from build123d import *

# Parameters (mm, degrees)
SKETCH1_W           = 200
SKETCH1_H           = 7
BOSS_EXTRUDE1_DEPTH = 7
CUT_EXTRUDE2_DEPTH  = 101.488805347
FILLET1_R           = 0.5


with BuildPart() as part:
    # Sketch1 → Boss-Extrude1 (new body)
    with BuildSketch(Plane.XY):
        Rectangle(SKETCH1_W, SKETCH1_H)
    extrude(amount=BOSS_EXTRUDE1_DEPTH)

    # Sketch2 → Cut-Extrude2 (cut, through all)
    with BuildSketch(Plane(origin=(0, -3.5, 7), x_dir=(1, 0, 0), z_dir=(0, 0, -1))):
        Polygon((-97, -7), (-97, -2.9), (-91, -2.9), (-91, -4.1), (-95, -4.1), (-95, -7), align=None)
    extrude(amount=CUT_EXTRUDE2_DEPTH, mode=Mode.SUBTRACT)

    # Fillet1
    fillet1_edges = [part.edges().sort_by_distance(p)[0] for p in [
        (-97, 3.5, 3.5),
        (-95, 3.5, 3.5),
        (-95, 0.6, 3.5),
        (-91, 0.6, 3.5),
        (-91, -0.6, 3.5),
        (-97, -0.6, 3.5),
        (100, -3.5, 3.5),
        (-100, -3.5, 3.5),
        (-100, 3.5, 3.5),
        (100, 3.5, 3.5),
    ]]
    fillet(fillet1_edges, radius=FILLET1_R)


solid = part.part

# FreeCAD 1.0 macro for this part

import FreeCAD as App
import Part
import Sketcher
from FreeCAD import Vector
Q = App.Units.Quantity


def edges_at(feature, points):
    """Names of the edges that pass closest to the given points."""
    edges = feature.Shape.Edges
    near = lambda p: min(range(len(edges)), key=lambda i: edges[i].distToShape(Part.Vertex(*p))[0])
    return sorted({f"Edge{near(p) + 1}" for p in points})

doc = App.newDocument("Part")
body = doc.addObject("PartDesign::Body", "Body")

# Sketch on XY plane
sketch1 = body.newObject("Sketcher::SketchObject", "Sketch")
sketch1.AttachmentSupport = (doc.getObject("XY_Plane"), [""])
sketch1.MapMode = "FlatFace"
sketch1.addGeometry(Part.LineSegment(Vector(-100, 3.5, 0), Vector(-100, -3.5, 0)), False)
sketch1.addGeometry(Part.LineSegment(Vector(-100, -3.5, 0), Vector(100, -3.5, 0)), False)
sketch1.addGeometry(Part.LineSegment(Vector(100, -3.5, 0), Vector(100, 3.5, 0)), False)
sketch1.addGeometry(Part.LineSegment(Vector(100, 3.5, 0), Vector(-100, 3.5, 0)), False)
sketch1.addConstraint(Sketcher.Constraint("Coincident", 0, 2, 1, 1))
sketch1.addConstraint(Sketcher.Constraint("Coincident", 1, 2, 2, 1))
sketch1.addConstraint(Sketcher.Constraint("Coincident", 2, 2, 3, 1))
sketch1.addConstraint(Sketcher.Constraint("Coincident", 3, 2, 0, 1))
sketch1.addConstraint(Sketcher.Constraint("Vertical", 0))
sketch1.addConstraint(Sketcher.Constraint("Horizontal", 1))
sketch1.addConstraint(Sketcher.Constraint("Vertical", 2))
sketch1.addConstraint(Sketcher.Constraint("Horizontal", 3))
sketch1.addConstraint(Sketcher.Constraint("Symmetric", 0, 2, 2, 2, -1, 1))
sketch1.addConstraint(Sketcher.Constraint("DistanceX", 1, 1, 1, 2, Q("200 mm")))
sketch1.addConstraint(Sketcher.Constraint("DistanceY", 0, 2, 0, 1, Q("7 mm")))
pad1 = body.newObject("PartDesign::Pad", "Pad")
pad1.Profile = sketch1
pad1.Length = 7

# Sketch on XY plane
sketch2 = body.newObject("Sketcher::SketchObject", "Sketch001")
sketch2.AttachmentSupport = (doc.getObject("XY_Plane"), [""])
sketch2.MapMode = "FlatFace"
sketch2.AttachmentOffset = App.Placement(Vector(0, 0, 7), App.Rotation())
sketch2.addGeometry(Part.LineSegment(Vector(-97, -0.6, 0), Vector(-97, 3.5, 0)), False)
sketch2.addGeometry(Part.LineSegment(Vector(-97, 3.5, 0), Vector(-95, 3.5, 0)), False)
sketch2.addGeometry(Part.LineSegment(Vector(-95, 3.5, 0), Vector(-95, 0.6, 0)), False)
sketch2.addGeometry(Part.LineSegment(Vector(-95, 0.6, 0), Vector(-91, 0.6, 0)), False)
sketch2.addGeometry(Part.LineSegment(Vector(-91, 0.6, 0), Vector(-91, -0.6, 0)), False)
sketch2.addGeometry(Part.LineSegment(Vector(-91, -0.6, 0), Vector(-97, -0.6, 0)), False)
sketch2.addConstraint(Sketcher.Constraint("Coincident", 0, 2, 1, 1))
sketch2.addConstraint(Sketcher.Constraint("Coincident", 1, 2, 2, 1))
sketch2.addConstraint(Sketcher.Constraint("Coincident", 2, 2, 3, 1))
sketch2.addConstraint(Sketcher.Constraint("Coincident", 3, 2, 4, 1))
sketch2.addConstraint(Sketcher.Constraint("Coincident", 4, 2, 5, 1))
sketch2.addConstraint(Sketcher.Constraint("Coincident", 5, 2, 0, 1))
sketch2.addConstraint(Sketcher.Constraint("Vertical", 0))
sketch2.addConstraint(Sketcher.Constraint("Horizontal", 1))
sketch2.addConstraint(Sketcher.Constraint("Vertical", 2))
sketch2.addConstraint(Sketcher.Constraint("Horizontal", 3))
sketch2.addConstraint(Sketcher.Constraint("Vertical", 4))
sketch2.addConstraint(Sketcher.Constraint("Horizontal", 5))
sketch2.addConstraint(Sketcher.Constraint("DistanceX", 1, 1, 1, 2, Q("2 mm")))
sketch2.addConstraint(Sketcher.Constraint("DistanceX", 3, 1, 3, 2, Q("4 mm")))
sketch2.addConstraint(Sketcher.Constraint("DistanceY", 0, 1, 0, 2, Q("4.1 mm")))
sketch2.addConstraint(Sketcher.Constraint("DistanceY", 2, 2, 2, 1, Q("2.9 mm")))
sketch2.addConstraint(Sketcher.Constraint("DistanceX", 0, 2, -1, 1, Q("97 mm")))
sketch2.addConstraint(Sketcher.Constraint("DistanceY", -1, 1, 0, 2, Q("3.5 mm")))
pocket1 = body.newObject("PartDesign::Pocket", "Pocket")
pocket1.Profile = sketch2
pocket1.Type = "ThroughAll"
doc.recompute()

fillet = body.newObject("PartDesign::Fillet", "Fillet")
fillet.Base = (pocket1, edges_at(pocket1, [
    (-97, 3.5, 3.5),
    (-95, 3.5, 3.5),
    (-95, 0.6, 3.5),
    (-91, 0.6, 3.5),
    (-91, -0.6, 3.5),
    (-97, -0.6, 3.5),
    (100, -3.5, 3.5),
    (-100, -3.5, 3.5),
    (-100, 3.5, 3.5),
    (100, 3.5, 3.5),
]))
fillet.Radius = 0.5

doc.recompute()
